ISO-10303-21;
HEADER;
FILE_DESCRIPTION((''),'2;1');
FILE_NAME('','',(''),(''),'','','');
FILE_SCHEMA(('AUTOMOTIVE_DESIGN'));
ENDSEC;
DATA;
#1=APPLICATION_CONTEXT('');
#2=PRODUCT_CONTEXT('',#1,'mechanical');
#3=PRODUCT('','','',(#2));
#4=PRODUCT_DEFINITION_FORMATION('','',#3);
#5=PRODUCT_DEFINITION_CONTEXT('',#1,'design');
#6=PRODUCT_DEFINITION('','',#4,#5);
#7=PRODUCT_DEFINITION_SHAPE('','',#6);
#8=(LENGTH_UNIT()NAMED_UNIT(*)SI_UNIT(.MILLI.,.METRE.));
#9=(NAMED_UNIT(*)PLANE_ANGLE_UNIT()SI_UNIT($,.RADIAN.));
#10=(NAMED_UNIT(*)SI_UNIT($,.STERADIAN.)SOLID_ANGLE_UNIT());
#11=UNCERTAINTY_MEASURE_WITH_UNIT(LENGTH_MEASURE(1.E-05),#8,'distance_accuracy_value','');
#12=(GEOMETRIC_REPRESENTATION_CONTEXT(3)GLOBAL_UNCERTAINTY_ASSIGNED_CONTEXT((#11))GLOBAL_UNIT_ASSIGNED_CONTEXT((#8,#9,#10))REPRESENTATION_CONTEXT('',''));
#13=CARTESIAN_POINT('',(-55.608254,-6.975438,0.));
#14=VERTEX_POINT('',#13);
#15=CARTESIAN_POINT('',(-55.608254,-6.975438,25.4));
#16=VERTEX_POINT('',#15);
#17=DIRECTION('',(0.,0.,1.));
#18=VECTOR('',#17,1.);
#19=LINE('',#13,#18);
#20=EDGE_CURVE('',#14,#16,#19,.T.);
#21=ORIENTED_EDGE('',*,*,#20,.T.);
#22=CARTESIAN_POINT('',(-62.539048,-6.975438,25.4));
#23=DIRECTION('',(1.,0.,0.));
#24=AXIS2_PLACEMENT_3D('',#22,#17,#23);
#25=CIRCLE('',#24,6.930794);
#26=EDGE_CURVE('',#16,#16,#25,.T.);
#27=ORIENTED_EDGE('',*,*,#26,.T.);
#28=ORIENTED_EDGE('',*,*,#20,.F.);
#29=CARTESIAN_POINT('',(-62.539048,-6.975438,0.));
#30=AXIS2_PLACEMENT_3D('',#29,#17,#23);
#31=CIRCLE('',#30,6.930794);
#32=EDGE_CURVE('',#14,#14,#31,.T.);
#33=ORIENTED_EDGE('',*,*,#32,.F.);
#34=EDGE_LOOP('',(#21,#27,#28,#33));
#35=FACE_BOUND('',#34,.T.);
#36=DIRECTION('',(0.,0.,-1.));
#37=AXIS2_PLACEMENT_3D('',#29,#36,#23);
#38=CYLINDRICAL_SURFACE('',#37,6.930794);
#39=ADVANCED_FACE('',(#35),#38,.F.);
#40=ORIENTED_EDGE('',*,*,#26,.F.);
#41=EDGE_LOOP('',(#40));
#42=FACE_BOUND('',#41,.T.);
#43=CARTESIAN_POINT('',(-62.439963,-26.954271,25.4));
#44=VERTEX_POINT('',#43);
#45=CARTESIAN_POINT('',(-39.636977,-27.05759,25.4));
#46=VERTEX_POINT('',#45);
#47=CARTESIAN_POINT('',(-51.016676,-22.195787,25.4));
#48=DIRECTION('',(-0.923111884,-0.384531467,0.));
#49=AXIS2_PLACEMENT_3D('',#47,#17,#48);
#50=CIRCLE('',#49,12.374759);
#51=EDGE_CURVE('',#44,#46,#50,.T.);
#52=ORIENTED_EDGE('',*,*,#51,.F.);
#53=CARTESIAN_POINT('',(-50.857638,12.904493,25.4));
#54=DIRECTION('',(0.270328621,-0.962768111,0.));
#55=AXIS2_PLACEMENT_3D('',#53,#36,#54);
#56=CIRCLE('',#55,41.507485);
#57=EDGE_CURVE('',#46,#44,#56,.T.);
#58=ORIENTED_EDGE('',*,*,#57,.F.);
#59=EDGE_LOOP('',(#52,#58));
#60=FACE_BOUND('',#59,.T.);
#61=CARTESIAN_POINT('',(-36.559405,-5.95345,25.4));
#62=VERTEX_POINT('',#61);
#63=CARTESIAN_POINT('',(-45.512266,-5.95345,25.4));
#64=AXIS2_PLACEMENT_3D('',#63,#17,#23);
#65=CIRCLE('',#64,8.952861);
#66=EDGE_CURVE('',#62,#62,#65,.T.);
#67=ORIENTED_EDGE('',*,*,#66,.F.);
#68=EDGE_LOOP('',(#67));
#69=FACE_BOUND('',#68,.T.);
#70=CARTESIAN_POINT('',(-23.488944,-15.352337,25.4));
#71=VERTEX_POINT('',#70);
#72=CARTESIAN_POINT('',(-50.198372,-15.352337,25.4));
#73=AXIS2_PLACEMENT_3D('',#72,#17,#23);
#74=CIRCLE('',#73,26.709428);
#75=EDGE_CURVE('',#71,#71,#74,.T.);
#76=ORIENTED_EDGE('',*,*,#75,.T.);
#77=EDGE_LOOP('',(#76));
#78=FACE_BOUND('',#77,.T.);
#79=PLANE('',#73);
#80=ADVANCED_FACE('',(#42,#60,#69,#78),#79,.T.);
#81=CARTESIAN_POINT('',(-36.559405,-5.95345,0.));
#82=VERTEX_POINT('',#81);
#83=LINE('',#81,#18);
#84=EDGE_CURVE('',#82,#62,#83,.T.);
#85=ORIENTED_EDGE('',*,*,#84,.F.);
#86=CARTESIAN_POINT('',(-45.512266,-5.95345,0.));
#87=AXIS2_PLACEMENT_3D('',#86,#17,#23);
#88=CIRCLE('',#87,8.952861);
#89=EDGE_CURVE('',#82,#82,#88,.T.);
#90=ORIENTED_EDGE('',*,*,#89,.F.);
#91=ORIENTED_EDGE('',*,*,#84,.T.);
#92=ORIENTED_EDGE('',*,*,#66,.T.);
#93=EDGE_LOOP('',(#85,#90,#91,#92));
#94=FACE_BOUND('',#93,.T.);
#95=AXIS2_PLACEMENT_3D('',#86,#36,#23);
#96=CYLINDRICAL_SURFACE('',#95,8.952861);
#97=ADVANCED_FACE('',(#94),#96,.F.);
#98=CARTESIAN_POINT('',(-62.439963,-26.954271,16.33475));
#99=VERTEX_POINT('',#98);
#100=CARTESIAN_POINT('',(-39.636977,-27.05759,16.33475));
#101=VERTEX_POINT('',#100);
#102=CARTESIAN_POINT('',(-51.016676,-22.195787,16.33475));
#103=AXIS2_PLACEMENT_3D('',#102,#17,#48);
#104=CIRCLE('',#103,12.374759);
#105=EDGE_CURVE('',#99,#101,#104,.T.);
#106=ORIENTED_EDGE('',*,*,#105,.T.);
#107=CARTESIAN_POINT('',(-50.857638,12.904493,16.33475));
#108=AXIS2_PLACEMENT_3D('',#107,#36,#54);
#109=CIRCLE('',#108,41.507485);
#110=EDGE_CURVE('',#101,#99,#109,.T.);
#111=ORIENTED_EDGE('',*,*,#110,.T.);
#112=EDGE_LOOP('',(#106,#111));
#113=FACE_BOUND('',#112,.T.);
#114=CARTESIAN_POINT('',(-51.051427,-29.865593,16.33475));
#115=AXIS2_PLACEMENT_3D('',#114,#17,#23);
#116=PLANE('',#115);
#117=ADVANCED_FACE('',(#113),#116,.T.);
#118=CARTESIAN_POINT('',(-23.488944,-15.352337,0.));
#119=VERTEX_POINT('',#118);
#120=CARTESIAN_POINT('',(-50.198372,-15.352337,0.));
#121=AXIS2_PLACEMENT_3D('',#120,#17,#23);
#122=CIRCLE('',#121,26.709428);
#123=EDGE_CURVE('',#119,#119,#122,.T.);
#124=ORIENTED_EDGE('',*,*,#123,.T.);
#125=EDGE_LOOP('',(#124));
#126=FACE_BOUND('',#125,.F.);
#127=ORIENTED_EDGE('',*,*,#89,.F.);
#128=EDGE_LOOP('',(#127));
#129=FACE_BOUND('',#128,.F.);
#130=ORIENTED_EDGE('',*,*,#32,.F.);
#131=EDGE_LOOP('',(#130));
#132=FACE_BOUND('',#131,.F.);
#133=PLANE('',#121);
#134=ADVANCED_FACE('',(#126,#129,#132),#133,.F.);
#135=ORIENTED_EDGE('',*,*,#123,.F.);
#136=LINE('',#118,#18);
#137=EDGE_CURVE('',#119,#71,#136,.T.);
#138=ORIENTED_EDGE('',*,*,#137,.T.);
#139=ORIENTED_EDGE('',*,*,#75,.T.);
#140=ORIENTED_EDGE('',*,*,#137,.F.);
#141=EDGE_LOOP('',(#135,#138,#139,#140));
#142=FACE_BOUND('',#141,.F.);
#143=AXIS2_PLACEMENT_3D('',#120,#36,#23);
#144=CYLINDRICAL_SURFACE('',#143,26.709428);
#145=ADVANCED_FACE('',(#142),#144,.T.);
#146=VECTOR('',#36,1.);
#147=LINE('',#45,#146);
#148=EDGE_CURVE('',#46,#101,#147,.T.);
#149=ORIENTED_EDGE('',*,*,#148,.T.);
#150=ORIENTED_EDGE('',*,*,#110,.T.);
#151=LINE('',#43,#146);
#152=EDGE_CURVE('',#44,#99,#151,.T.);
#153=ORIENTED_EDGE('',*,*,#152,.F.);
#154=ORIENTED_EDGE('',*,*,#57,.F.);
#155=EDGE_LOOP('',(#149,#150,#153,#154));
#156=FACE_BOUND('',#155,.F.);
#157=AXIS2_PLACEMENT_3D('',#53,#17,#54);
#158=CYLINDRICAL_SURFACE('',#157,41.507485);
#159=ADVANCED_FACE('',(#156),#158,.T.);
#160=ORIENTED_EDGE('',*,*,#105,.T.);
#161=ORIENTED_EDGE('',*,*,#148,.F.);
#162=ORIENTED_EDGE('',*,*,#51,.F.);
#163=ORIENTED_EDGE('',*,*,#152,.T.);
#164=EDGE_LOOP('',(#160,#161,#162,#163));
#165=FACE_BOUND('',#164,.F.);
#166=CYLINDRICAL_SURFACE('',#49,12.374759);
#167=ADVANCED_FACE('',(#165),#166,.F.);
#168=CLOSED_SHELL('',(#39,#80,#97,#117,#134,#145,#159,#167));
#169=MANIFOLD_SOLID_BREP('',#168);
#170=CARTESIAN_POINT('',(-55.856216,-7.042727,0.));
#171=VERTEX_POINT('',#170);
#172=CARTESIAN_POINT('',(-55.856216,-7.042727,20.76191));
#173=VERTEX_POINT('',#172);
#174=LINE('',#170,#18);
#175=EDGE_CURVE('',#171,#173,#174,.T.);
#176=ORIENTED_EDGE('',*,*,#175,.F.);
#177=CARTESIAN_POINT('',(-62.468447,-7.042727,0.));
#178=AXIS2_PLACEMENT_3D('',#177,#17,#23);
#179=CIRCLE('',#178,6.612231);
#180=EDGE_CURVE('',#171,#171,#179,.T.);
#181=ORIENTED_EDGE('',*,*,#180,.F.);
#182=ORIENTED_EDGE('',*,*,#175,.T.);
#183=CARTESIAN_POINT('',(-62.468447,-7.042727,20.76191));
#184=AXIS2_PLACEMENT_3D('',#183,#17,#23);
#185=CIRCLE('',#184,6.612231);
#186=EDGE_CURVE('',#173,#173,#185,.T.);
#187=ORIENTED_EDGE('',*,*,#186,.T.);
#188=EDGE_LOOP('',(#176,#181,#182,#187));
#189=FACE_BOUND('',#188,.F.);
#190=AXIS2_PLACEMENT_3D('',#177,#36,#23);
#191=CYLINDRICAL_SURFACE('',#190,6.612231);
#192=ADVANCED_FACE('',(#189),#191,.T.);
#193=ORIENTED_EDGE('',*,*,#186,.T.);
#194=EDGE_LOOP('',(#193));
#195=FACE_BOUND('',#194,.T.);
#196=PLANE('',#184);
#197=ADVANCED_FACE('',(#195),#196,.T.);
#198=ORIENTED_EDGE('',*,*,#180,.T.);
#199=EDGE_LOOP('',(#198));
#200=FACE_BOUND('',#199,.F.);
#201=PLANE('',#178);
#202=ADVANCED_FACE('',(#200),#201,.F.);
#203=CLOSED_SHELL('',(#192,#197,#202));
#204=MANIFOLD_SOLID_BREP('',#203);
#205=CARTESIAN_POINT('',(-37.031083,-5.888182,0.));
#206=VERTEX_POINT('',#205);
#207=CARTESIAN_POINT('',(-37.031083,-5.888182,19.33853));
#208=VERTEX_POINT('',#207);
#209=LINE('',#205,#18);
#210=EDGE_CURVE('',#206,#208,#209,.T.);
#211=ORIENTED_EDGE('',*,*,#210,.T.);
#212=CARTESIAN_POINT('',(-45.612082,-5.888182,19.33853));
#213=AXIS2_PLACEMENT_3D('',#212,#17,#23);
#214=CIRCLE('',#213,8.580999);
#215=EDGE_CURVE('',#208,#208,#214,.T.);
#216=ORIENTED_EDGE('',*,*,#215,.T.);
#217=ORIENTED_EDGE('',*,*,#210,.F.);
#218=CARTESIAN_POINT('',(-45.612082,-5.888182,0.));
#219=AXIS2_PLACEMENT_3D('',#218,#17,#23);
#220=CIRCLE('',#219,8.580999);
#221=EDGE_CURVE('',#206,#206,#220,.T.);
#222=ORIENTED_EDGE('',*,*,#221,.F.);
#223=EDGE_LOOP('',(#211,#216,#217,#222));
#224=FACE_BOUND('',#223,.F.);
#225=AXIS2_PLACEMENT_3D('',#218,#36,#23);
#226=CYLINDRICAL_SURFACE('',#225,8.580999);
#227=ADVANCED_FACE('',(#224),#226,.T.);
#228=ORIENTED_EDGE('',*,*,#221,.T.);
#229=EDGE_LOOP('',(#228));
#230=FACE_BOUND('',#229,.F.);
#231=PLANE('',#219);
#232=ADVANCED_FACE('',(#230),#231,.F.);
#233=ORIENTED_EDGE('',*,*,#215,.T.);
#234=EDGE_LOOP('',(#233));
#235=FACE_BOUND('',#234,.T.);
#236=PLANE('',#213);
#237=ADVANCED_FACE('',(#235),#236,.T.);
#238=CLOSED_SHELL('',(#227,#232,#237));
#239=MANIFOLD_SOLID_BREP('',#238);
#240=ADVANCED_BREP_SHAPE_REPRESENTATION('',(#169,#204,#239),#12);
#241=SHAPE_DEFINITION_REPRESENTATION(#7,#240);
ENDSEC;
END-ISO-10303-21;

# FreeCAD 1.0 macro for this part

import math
import FreeCAD as App
import Part
import Sketcher
Q = App.Units.Quantity

doc = App.newDocument("Part")
body = doc.addObject("PartDesign::Body", "Body")

# Sketch on XY plane
sketch1 = body.newObject("Sketcher::SketchObject", "Sketch")
sketch1.AttachmentSupport = (doc.getObject("XY_Plane"), [""])
sketch1.MapMode = "FlatFace"
sketch1.addGeometry([
    Part.Circle(App.Vector(-50.198372, -15.352337, 0), App.Vector(0, 0, 1), 26.709428),
    Part.Circle(App.Vector(-62.539048, -6.975438, 0), App.Vector(0, 0, 1), 6.930794),
    Part.Circle(App.Vector(-45.512266, -5.95345, 0), App.Vector(0, 0, 1), 8.952861),
], False)
sketch1.addConstraint([
    Sketcher.Constraint("Diameter", 0, Q("53.418856 mm")),
    Sketcher.Constraint("Diameter", 1, Q("13.861588 mm")),
    Sketcher.Constraint("Diameter", 2, Q("17.905722 mm")),
    Sketcher.Constraint("DistanceY", 0, 3, 1, 3, Q("8.376899 mm")),
    Sketcher.Constraint("DistanceY", 2, 3, -1, 1, Q("5.95345 mm")),
    Sketcher.Constraint("DistanceX", 0, 3, -1, 1, Q("50.198372 mm")),
    Sketcher.Constraint("DistanceY", 0, 3, -1, 1, Q("15.352337 mm")),
    Sketcher.Constraint("DistanceX", 1, 3, -1, 1, Q("62.539048 mm")),
    Sketcher.Constraint("DistanceX", 2, 3, -1, 1, Q("45.512266 mm")),
])
pad1 = body.newObject("PartDesign::Pad", "Pad")
pad1.Profile = sketch1
pad1.Length = Q("1 in")

# Sketch on XY plane
sketch2 = body.newObject("Sketcher::SketchObject", "Sketch001")
sketch2.AttachmentSupport = (doc.getObject("XY_Plane"), [""])
sketch2.MapMode = "FlatFace"
sketch2.AttachmentOffset = App.Placement(App.Vector(0, 0, 1 * 25.4), App.Rotation())
sketch2.addGeometry([
    Part.ArcOfCircle(Part.Circle(App.Vector(-50.857638, 12.904493, 0), App.Vector(0, 0, 1), 41.507485), math.radians(-106.203027), math.radians(-74.316177)),
    Part.ArcOfCircle(Part.Circle(App.Vector(-51.016676, -22.195787, 0), App.Vector(0, 0, 1), 12.374759), math.radians(-157.385344), math.radians(-23.13386)),
], False)
sketch2.addConstraint([
    Sketcher.Constraint("Coincident", 0, 1, 1, 1),
    Sketcher.Constraint("Coincident", 1, 2, 0, 2),
    Sketcher.Constraint("Radius", 1, Q("12.374759 mm")),
    Sketcher.Constraint("Radius", 0, Q("41.507485 mm")),
    Sketcher.Constraint("DistanceX", 1, 3, 1, 2, Q("11.379699 mm")),
    Sketcher.Constraint("DistanceX", 0, 3, -1, 1, Q("50.857638 mm")),
    Sketcher.Constraint("DistanceY", 0, 1, -1, 1, Q("26.954271 mm")),
    Sketcher.Constraint("DistanceY", 1, 2, -1, 1, Q("27.05759 mm")),
])
pocket1 = body.newObject("PartDesign::Pocket", "Pocket")
pocket1.Profile = sketch2
pocket1.Length = 9.06525
body2 = doc.addObject("PartDesign::Body", "Body001")

# Sketch on XY plane
sketch3 = body2.newObject("Sketcher::SketchObject", "Sketch002")
sketch3.AttachmentSupport = (doc.getObject("XY_Plane001"), [""])
sketch3.MapMode = "FlatFace"
sketch3.addGeometry(Part.Circle(App.Vector(-62.468447, -7.042727, 0), App.Vector(0, 0, 1), 6.612231), False)
sketch3.addConstraint([
    Sketcher.Constraint("Diameter", 0, Q("13.224462 mm")),
    Sketcher.Constraint("DistanceX", 0, 3, -1, 1, Q("62.468447 mm")),
    Sketcher.Constraint("DistanceY", 0, 3, -1, 1, Q("7.042727 mm")),
])
pad2 = body2.newObject("PartDesign::Pad", "Pad001")
pad2.Profile = sketch3
pad2.Length = 20.76191
body3 = doc.addObject("PartDesign::Body", "Body002")

# Sketch on XY plane
sketch4 = body3.newObject("Sketcher::SketchObject", "Sketch003")
sketch4.AttachmentSupport = (doc.getObject("XY_Plane002"), [""])
sketch4.MapMode = "FlatFace"
sketch4.addGeometry(Part.Circle(App.Vector(-45.612082, -5.888182, 0), App.Vector(0, 0, 1), 8.580999), False)
sketch4.addConstraint([
    Sketcher.Constraint("Diameter", 0, Q("17.161998 mm")),
    Sketcher.Constraint("DistanceY", 0, 3, -1, 1, Q("5.888182 mm")),
    Sketcher.Constraint("DistanceX", 0, 3, -1, 1, Q("45.612082 mm")),
])
pad3 = body3.newObject("PartDesign::Pad", "Pad002")
pad3.Profile = sketch4
pad3.Length = 19.33853

doc.recompute()
